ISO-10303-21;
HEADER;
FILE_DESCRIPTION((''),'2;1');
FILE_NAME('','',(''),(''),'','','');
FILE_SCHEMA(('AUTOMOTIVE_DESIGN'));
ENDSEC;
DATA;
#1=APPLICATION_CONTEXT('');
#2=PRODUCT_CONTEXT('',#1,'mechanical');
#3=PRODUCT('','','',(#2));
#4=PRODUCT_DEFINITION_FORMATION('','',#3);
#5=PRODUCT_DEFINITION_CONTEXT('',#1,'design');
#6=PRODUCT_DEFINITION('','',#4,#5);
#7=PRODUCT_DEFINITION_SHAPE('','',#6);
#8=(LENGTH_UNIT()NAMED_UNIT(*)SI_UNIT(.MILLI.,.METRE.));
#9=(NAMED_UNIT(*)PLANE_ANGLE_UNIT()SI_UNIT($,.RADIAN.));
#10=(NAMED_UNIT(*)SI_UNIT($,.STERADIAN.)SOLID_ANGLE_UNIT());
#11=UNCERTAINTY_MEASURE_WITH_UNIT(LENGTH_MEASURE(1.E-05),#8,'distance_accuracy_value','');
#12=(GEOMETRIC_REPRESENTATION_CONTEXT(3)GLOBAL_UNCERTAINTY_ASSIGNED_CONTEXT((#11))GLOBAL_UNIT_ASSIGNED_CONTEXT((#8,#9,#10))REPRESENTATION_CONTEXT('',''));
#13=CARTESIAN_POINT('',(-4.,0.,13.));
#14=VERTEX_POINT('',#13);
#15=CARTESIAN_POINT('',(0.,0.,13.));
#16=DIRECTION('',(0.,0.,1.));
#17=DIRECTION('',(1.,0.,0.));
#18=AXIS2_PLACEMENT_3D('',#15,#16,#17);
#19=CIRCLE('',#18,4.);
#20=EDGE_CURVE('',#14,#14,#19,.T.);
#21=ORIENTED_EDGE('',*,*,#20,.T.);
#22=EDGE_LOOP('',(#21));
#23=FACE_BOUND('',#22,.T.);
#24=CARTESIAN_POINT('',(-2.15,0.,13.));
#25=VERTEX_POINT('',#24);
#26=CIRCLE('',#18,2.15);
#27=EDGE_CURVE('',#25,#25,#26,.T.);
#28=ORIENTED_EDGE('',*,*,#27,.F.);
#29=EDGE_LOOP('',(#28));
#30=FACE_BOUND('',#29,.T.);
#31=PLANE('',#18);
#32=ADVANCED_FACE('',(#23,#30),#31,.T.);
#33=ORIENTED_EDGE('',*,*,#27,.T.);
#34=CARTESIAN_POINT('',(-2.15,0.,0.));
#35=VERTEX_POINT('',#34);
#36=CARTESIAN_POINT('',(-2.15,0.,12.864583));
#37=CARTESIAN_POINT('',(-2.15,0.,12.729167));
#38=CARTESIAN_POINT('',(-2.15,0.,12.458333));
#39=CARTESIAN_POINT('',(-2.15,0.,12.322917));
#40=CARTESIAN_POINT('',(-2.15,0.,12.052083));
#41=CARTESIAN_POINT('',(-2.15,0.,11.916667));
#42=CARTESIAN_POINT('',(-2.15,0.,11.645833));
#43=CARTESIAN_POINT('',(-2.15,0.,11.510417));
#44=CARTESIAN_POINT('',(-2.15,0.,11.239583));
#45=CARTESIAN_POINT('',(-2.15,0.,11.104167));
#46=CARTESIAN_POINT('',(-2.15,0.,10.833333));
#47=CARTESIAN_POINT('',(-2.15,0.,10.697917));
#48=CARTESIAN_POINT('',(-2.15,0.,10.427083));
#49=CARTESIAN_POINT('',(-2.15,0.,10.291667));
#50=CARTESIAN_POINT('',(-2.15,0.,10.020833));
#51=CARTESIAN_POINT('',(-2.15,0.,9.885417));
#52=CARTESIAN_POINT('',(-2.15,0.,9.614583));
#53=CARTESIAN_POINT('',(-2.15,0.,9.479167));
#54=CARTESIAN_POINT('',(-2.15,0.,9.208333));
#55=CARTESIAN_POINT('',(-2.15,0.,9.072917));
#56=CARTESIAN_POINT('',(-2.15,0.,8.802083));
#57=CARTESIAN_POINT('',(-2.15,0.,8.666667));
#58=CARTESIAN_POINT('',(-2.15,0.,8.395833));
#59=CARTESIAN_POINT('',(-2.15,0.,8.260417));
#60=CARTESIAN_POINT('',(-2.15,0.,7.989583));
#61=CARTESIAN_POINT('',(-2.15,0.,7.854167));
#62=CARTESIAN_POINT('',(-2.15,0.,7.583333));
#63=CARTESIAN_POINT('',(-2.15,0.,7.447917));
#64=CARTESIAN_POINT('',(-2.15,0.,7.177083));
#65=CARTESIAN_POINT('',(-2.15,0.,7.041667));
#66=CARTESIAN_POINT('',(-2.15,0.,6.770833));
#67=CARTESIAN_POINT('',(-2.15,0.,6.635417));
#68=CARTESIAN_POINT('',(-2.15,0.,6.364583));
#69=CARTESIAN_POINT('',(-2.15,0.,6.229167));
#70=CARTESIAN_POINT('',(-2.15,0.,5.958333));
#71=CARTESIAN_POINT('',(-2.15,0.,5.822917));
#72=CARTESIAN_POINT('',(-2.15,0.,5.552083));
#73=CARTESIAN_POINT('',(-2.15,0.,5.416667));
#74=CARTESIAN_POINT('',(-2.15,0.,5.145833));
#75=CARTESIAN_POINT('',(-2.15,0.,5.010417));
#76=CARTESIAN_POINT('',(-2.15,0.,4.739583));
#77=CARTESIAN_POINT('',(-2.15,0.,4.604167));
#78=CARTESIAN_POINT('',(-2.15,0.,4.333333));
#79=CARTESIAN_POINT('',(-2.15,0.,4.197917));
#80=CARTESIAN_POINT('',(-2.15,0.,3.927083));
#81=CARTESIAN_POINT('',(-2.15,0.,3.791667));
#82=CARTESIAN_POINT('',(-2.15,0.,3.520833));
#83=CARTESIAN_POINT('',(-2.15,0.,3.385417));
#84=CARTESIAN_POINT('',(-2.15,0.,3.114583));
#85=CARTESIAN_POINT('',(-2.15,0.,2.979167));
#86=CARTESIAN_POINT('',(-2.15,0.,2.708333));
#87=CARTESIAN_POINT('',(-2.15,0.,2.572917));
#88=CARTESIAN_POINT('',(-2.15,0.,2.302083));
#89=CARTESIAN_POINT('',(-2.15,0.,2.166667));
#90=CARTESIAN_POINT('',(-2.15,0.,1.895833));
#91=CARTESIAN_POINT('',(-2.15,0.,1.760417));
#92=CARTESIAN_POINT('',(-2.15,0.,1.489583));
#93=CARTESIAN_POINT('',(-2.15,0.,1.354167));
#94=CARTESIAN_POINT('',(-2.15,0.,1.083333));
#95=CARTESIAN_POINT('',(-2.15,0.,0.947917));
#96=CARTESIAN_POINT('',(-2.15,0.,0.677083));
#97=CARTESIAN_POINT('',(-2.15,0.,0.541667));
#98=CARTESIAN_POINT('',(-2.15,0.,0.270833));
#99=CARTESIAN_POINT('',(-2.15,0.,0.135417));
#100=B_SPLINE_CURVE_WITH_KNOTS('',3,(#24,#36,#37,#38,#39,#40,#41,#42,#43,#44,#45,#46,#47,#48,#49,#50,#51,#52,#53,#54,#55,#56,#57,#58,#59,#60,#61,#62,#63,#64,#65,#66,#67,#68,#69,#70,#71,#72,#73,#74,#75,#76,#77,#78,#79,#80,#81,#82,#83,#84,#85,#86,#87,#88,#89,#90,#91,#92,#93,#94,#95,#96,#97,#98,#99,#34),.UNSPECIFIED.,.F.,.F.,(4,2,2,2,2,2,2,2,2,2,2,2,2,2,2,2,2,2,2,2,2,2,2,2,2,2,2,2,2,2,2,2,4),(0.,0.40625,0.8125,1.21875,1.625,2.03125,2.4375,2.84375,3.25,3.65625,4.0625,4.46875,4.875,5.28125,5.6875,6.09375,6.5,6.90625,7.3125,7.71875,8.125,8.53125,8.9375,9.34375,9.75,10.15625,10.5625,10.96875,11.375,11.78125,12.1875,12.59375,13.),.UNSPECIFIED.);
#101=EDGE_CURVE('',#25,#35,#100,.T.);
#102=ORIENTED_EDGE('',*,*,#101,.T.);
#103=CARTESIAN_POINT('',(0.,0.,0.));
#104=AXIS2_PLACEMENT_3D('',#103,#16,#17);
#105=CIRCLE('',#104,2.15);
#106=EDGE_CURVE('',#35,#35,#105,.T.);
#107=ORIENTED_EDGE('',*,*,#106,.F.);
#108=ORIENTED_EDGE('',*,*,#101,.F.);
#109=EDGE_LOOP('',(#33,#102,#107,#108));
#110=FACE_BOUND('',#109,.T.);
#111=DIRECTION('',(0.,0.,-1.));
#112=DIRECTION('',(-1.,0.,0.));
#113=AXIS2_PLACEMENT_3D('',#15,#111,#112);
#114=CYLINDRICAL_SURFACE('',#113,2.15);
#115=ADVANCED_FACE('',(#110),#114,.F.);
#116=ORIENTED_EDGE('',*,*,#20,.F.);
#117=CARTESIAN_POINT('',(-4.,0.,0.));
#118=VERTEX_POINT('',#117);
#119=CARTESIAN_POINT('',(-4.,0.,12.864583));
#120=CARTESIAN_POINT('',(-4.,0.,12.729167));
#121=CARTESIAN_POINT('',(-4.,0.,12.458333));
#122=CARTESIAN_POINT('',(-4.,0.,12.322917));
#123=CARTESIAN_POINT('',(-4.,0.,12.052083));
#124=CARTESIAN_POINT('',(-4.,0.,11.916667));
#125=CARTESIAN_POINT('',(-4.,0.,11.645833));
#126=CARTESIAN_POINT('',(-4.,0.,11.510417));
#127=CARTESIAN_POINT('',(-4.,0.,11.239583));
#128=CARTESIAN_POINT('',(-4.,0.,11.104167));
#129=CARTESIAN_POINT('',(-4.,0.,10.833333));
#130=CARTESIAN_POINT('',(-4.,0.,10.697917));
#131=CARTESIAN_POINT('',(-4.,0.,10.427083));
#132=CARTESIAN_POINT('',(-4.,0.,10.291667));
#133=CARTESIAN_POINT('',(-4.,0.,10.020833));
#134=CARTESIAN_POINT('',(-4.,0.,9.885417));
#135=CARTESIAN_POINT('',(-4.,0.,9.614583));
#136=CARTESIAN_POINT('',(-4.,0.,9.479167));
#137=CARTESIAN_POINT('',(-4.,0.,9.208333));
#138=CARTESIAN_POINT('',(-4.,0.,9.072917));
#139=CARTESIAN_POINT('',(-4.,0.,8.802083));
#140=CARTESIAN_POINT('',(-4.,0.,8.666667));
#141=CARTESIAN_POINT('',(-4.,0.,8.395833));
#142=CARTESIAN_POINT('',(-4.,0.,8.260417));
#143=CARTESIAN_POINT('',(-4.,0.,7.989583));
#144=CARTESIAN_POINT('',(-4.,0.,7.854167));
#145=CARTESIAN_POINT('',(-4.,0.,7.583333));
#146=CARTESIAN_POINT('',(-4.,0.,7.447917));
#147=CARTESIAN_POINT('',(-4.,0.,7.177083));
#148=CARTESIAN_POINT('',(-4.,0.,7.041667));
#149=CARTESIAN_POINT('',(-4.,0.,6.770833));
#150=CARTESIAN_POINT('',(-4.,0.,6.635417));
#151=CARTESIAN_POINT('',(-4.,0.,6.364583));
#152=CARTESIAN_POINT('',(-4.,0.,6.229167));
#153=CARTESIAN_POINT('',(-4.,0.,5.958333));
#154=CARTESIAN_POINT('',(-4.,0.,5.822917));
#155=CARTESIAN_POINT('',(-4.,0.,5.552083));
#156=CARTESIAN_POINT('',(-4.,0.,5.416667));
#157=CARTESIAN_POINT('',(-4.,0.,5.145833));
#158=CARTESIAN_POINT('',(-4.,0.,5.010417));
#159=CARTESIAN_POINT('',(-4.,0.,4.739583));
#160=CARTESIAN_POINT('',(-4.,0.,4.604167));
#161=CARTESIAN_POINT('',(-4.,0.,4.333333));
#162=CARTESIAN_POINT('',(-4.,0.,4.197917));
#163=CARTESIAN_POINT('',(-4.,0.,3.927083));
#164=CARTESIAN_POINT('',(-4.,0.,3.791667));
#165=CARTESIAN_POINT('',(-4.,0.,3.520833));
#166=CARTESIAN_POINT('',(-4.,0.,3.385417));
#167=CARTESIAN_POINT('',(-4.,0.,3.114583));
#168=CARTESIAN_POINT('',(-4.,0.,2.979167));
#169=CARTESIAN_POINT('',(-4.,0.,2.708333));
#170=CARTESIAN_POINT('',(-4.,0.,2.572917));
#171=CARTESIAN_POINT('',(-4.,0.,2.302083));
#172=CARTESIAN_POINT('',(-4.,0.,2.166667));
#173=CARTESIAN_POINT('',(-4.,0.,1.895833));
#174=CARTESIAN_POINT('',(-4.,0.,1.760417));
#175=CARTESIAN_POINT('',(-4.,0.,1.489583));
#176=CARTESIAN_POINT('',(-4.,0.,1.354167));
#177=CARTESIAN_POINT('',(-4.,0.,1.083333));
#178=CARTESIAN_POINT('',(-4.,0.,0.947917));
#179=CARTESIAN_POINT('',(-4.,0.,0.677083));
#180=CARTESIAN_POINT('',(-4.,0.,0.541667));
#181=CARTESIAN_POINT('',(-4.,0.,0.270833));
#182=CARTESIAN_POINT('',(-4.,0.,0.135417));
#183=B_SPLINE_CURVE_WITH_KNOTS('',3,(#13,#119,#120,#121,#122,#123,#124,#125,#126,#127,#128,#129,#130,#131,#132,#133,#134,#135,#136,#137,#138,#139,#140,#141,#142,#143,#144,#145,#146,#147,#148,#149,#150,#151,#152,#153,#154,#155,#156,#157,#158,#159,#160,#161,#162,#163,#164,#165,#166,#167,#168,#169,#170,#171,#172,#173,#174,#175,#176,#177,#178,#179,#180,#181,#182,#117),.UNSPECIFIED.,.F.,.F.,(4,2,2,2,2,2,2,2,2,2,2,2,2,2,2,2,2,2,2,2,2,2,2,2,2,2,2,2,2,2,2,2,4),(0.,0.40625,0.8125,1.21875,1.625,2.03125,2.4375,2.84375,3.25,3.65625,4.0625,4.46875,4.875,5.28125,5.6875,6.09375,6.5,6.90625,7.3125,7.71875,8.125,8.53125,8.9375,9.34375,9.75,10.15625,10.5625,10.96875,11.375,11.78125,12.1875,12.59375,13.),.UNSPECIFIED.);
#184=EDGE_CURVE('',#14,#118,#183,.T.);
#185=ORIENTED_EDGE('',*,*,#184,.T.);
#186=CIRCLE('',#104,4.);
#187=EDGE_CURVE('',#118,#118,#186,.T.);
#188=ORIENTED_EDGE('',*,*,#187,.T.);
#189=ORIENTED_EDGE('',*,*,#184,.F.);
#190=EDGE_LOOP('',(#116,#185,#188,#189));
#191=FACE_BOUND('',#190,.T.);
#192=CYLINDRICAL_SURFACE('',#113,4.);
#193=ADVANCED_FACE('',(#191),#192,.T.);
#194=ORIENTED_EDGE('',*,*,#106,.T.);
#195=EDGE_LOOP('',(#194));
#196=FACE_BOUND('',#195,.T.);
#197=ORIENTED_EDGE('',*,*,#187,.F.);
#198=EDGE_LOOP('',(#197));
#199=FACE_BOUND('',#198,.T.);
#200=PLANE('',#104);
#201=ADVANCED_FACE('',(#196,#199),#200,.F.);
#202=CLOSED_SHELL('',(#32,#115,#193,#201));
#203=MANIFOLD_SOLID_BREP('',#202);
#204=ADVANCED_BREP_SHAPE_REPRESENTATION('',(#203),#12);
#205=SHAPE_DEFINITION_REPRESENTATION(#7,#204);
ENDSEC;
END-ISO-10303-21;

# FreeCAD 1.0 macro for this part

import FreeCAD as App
import Part
import Sketcher
from FreeCAD import Vector
Q = App.Units.Quantity

doc = App.newDocument("Part")
params = doc.addObject("Spreadsheet::Sheet", "Params")
for row, (alias, value) in enumerate([
    ("sketch1_diameter", "8 mm"),
    ("sketch1_diameter2", "4.3 mm"),
    ("pad1_length", "13 mm"),
], start=1):
    params.set(f"A{row}", alias)
    params.set(f"B{row}", "=" + value)
    params.setAlias(f"B{row}", alias)

body = doc.addObject("PartDesign::Body", "Body")

# Sketch on XY plane
sketch1 = body.newObject("Sketcher::SketchObject", "Sketch")
sketch1.AttachmentSupport = (doc.getObject("XY_Plane"), [""])
sketch1.MapMode = "FlatFace"
sketch1.addGeometry(Part.Circle(Vector(0, 0, 0), Vector(0, 0, 1), 4), False)
sketch1.addGeometry(Part.Circle(Vector(0, 0, 0), Vector(0, 0, 1), 2.1), False)
sketch1.addConstraint(Sketcher.Constraint("Coincident", 0, 3, -1, 1))
sketch1.addConstraint(Sketcher.Constraint("Coincident", 1, 3, -1, 1))
sketch1.addConstraint(Sketcher.Constraint("Diameter", 0, Q("8 mm")))
sketch1.addConstraint(Sketcher.Constraint("Diameter", 1, Q("4.3 mm")))
sketch1.setExpression("Constraints[2]", "Params.sketch1_diameter")
sketch1.setExpression("Constraints[3]", "Params.sketch1_diameter2")
pad1 = body.newObject("PartDesign::Pad", "Pad")
pad1.Profile = sketch1
pad1.setExpression("Length", "Params.pad1_length")

doc.recompute()
